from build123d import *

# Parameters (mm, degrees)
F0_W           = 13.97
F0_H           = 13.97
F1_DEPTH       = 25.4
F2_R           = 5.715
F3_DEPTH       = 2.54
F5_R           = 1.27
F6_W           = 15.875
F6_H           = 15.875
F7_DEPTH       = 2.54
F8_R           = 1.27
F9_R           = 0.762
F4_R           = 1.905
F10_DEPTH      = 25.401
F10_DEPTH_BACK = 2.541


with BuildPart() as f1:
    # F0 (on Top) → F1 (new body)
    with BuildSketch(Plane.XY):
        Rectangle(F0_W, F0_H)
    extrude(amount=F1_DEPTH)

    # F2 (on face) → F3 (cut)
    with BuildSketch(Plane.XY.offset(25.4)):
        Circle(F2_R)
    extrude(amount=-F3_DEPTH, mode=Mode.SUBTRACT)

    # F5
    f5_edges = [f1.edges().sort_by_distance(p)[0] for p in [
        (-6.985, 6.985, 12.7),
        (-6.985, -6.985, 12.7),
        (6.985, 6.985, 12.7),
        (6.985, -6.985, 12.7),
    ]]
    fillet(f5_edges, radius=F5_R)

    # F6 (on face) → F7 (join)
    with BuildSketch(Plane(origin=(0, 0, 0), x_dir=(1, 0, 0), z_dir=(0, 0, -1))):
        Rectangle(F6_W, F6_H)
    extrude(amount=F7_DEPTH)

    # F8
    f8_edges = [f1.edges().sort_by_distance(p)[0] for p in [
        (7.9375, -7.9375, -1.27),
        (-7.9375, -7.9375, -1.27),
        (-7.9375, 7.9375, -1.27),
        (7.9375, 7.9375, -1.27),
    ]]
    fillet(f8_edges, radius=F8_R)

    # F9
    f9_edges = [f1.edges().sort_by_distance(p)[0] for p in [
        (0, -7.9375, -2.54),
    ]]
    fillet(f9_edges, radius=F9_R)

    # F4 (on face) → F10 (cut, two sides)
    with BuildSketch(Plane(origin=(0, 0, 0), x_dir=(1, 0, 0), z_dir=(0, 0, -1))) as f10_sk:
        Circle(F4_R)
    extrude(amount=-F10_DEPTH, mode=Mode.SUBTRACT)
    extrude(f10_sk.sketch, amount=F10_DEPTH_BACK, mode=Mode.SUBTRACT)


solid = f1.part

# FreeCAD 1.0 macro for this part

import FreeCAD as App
import Part
import Sketcher
from FreeCAD import Vector
Q = App.Units.Quantity


def edges_at(feature, points):
    """Names of the edges that pass closest to the given points."""
    edges = feature.Shape.Edges
    near = lambda p: min(range(len(edges)), key=lambda i: edges[i].distToShape(Part.Vertex(*p))[0])
    return sorted({f"Edge{near(p) + 1}" for p in points})

doc = App.newDocument("Part")
body = doc.addObject("PartDesign::Body", "Body")

sketch1 = body.newObject("Sketcher::SketchObject", "Sketch")
sketch1.AttachmentSupport = (doc.getObject("XY_Plane"), [""])
sketch1.MapMode = "FlatFace"
sketch1.addGeometry([
    Part.LineSegment(Vector(-6.985, 6.985, 0), Vector(-6.985, -6.985, 0)),
    Part.LineSegment(Vector(-6.985, -6.985, 0), Vector(6.985, -6.985, 0)),
    Part.LineSegment(Vector(6.985, -6.985, 0), Vector(6.985, 6.985, 0)),
    Part.LineSegment(Vector(6.985, 6.985, 0), Vector(-6.985, 6.985, 0)),
], False)
sketch1.addConstraint([
    Sketcher.Constraint("Coincident", 0, 2, 1, 1),
    Sketcher.Constraint("Coincident", 1, 2, 2, 1),
    Sketcher.Constraint("Coincident", 2, 2, 3, 1),
    Sketcher.Constraint("Coincident", 3, 2, 0, 1),
    Sketcher.Constraint("Vertical", 0),
    Sketcher.Constraint("Horizontal", 1),
    Sketcher.Constraint("Vertical", 2),
    Sketcher.Constraint("Horizontal", 3),
    Sketcher.Constraint("Symmetric", 0, 2, 2, 2, -1, 1),
    Sketcher.Constraint("Equal", 3, 0),
    Sketcher.Constraint("DistanceX", 1, 1, 1, 2, Q("0.55 in")),
])
pad1 = body.newObject("PartDesign::Pad", "Pad")
pad1.Profile = sketch1
pad1.Length = Q("1 in")

sketch2 = body.newObject("Sketcher::SketchObject", "Sketch001")
sketch2.AttachmentSupport = (doc.getObject("XY_Plane"), [""])
sketch2.MapMode = "FlatFace"
sketch2.AttachmentOffset = App.Placement(Vector(0, 0, 1 * 25.4), App.Rotation())
sketch2.addGeometry(Part.Circle(Vector(0, 0, 0), Vector(0, 0, 1), 5.715), False)
sketch2.addConstraint([
    Sketcher.Constraint("Coincident", 0, 3, -1, 1),
    Sketcher.Constraint("Diameter", 0, Q("0.45 in")),
])
pocket1 = body.newObject("PartDesign::Pocket", "Pocket")
pocket1.Profile = sketch2
pocket1.Length = Q("0.1 in")
doc.recompute()

fillet = body.newObject("PartDesign::Fillet", "Fillet")
fillet.Base = (pocket1, edges_at(pocket1, [
    (-6.985, 6.985, 12.7),
    (-6.985, -6.985, 12.7),
    (6.985, 6.985, 12.7),
    (6.985, -6.985, 12.7),
]))
fillet.Radius = Q("0.05 in")

sketch3 = body.newObject("Sketcher::SketchObject", "Sketch002")
sketch3.AttachmentSupport = (doc.getObject("XY_Plane"), [""])
sketch3.MapMode = "FlatFace"
sketch3.addGeometry([
    Part.LineSegment(Vector(-7.9375, -7.9375, 0), Vector(-7.9375, 7.9375, 0)),
    Part.LineSegment(Vector(-7.9375, 7.9375, 0), Vector(7.9375, 7.9375, 0)),
    Part.LineSegment(Vector(7.9375, 7.9375, 0), Vector(7.9375, -7.9375, 0)),
    Part.LineSegment(Vector(7.9375, -7.9375, 0), Vector(-7.9375, -7.9375, 0)),
], False)
sketch3.addConstraint([
    Sketcher.Constraint("Coincident", 0, 2, 1, 1),
    Sketcher.Constraint("Coincident", 1, 2, 2, 1),
    Sketcher.Constraint("Coincident", 2, 2, 3, 1),
    Sketcher.Constraint("Coincident", 3, 2, 0, 1),
    Sketcher.Constraint("Vertical", 0),
    Sketcher.Constraint("Horizontal", 1),
    Sketcher.Constraint("Vertical", 2),
    Sketcher.Constraint("Horizontal", 3),
    Sketcher.Constraint("Symmetric", 0, 2, 2, 2, -1, 1),
    Sketcher.Constraint("Equal", 3, 0),
    Sketcher.Constraint("DistanceX", 1, 1, 1, 2, Q("0.625 in")),
])
pad2 = body.newObject("PartDesign::Pad", "Pad001")
pad2.Profile = sketch3
pad2.Length = Q("0.1 in")
pad2.Reversed = True
doc.recompute()

fillet2 = body.newObject("PartDesign::Fillet", "Fillet001")
fillet2.Base = (pad2, edges_at(pad2, [
    (7.938, -7.938, -1.27),
    (-7.938, -7.938, -1.27),
    (-7.938, 7.938, -1.27),
    (7.938, 7.938, -1.27),
]))
fillet2.Radius = Q("0.05 in")
doc.recompute()

fillet3 = body.newObject("PartDesign::Fillet", "Fillet002")
fillet3.Base = (fillet2, edges_at(fillet2, [(0, -7.938, -2.54)]))
fillet3.Radius = Q("0.03 in")

sketch4 = body.newObject("Sketcher::SketchObject", "Sketch003")
sketch4.AttachmentSupport = (doc.getObject("XY_Plane"), [""])
sketch4.MapMode = "FlatFace"
sketch4.addGeometry(Part.Circle(Vector(0, 0, 0), Vector(0, 0, 1), 1.905), False)
sketch4.addConstraint([
    Sketcher.Constraint("Coincident", 0, 3, -1, 1),
    Sketcher.Constraint("Diameter", 0, Q("0.15 in")),
])
pocket2 = body.newObject("PartDesign::Pocket", "Pocket001")
pocket2.Profile = sketch4
pocket2.Type = "ThroughAll"
pocket2.Midplane = True

doc.recompute()
